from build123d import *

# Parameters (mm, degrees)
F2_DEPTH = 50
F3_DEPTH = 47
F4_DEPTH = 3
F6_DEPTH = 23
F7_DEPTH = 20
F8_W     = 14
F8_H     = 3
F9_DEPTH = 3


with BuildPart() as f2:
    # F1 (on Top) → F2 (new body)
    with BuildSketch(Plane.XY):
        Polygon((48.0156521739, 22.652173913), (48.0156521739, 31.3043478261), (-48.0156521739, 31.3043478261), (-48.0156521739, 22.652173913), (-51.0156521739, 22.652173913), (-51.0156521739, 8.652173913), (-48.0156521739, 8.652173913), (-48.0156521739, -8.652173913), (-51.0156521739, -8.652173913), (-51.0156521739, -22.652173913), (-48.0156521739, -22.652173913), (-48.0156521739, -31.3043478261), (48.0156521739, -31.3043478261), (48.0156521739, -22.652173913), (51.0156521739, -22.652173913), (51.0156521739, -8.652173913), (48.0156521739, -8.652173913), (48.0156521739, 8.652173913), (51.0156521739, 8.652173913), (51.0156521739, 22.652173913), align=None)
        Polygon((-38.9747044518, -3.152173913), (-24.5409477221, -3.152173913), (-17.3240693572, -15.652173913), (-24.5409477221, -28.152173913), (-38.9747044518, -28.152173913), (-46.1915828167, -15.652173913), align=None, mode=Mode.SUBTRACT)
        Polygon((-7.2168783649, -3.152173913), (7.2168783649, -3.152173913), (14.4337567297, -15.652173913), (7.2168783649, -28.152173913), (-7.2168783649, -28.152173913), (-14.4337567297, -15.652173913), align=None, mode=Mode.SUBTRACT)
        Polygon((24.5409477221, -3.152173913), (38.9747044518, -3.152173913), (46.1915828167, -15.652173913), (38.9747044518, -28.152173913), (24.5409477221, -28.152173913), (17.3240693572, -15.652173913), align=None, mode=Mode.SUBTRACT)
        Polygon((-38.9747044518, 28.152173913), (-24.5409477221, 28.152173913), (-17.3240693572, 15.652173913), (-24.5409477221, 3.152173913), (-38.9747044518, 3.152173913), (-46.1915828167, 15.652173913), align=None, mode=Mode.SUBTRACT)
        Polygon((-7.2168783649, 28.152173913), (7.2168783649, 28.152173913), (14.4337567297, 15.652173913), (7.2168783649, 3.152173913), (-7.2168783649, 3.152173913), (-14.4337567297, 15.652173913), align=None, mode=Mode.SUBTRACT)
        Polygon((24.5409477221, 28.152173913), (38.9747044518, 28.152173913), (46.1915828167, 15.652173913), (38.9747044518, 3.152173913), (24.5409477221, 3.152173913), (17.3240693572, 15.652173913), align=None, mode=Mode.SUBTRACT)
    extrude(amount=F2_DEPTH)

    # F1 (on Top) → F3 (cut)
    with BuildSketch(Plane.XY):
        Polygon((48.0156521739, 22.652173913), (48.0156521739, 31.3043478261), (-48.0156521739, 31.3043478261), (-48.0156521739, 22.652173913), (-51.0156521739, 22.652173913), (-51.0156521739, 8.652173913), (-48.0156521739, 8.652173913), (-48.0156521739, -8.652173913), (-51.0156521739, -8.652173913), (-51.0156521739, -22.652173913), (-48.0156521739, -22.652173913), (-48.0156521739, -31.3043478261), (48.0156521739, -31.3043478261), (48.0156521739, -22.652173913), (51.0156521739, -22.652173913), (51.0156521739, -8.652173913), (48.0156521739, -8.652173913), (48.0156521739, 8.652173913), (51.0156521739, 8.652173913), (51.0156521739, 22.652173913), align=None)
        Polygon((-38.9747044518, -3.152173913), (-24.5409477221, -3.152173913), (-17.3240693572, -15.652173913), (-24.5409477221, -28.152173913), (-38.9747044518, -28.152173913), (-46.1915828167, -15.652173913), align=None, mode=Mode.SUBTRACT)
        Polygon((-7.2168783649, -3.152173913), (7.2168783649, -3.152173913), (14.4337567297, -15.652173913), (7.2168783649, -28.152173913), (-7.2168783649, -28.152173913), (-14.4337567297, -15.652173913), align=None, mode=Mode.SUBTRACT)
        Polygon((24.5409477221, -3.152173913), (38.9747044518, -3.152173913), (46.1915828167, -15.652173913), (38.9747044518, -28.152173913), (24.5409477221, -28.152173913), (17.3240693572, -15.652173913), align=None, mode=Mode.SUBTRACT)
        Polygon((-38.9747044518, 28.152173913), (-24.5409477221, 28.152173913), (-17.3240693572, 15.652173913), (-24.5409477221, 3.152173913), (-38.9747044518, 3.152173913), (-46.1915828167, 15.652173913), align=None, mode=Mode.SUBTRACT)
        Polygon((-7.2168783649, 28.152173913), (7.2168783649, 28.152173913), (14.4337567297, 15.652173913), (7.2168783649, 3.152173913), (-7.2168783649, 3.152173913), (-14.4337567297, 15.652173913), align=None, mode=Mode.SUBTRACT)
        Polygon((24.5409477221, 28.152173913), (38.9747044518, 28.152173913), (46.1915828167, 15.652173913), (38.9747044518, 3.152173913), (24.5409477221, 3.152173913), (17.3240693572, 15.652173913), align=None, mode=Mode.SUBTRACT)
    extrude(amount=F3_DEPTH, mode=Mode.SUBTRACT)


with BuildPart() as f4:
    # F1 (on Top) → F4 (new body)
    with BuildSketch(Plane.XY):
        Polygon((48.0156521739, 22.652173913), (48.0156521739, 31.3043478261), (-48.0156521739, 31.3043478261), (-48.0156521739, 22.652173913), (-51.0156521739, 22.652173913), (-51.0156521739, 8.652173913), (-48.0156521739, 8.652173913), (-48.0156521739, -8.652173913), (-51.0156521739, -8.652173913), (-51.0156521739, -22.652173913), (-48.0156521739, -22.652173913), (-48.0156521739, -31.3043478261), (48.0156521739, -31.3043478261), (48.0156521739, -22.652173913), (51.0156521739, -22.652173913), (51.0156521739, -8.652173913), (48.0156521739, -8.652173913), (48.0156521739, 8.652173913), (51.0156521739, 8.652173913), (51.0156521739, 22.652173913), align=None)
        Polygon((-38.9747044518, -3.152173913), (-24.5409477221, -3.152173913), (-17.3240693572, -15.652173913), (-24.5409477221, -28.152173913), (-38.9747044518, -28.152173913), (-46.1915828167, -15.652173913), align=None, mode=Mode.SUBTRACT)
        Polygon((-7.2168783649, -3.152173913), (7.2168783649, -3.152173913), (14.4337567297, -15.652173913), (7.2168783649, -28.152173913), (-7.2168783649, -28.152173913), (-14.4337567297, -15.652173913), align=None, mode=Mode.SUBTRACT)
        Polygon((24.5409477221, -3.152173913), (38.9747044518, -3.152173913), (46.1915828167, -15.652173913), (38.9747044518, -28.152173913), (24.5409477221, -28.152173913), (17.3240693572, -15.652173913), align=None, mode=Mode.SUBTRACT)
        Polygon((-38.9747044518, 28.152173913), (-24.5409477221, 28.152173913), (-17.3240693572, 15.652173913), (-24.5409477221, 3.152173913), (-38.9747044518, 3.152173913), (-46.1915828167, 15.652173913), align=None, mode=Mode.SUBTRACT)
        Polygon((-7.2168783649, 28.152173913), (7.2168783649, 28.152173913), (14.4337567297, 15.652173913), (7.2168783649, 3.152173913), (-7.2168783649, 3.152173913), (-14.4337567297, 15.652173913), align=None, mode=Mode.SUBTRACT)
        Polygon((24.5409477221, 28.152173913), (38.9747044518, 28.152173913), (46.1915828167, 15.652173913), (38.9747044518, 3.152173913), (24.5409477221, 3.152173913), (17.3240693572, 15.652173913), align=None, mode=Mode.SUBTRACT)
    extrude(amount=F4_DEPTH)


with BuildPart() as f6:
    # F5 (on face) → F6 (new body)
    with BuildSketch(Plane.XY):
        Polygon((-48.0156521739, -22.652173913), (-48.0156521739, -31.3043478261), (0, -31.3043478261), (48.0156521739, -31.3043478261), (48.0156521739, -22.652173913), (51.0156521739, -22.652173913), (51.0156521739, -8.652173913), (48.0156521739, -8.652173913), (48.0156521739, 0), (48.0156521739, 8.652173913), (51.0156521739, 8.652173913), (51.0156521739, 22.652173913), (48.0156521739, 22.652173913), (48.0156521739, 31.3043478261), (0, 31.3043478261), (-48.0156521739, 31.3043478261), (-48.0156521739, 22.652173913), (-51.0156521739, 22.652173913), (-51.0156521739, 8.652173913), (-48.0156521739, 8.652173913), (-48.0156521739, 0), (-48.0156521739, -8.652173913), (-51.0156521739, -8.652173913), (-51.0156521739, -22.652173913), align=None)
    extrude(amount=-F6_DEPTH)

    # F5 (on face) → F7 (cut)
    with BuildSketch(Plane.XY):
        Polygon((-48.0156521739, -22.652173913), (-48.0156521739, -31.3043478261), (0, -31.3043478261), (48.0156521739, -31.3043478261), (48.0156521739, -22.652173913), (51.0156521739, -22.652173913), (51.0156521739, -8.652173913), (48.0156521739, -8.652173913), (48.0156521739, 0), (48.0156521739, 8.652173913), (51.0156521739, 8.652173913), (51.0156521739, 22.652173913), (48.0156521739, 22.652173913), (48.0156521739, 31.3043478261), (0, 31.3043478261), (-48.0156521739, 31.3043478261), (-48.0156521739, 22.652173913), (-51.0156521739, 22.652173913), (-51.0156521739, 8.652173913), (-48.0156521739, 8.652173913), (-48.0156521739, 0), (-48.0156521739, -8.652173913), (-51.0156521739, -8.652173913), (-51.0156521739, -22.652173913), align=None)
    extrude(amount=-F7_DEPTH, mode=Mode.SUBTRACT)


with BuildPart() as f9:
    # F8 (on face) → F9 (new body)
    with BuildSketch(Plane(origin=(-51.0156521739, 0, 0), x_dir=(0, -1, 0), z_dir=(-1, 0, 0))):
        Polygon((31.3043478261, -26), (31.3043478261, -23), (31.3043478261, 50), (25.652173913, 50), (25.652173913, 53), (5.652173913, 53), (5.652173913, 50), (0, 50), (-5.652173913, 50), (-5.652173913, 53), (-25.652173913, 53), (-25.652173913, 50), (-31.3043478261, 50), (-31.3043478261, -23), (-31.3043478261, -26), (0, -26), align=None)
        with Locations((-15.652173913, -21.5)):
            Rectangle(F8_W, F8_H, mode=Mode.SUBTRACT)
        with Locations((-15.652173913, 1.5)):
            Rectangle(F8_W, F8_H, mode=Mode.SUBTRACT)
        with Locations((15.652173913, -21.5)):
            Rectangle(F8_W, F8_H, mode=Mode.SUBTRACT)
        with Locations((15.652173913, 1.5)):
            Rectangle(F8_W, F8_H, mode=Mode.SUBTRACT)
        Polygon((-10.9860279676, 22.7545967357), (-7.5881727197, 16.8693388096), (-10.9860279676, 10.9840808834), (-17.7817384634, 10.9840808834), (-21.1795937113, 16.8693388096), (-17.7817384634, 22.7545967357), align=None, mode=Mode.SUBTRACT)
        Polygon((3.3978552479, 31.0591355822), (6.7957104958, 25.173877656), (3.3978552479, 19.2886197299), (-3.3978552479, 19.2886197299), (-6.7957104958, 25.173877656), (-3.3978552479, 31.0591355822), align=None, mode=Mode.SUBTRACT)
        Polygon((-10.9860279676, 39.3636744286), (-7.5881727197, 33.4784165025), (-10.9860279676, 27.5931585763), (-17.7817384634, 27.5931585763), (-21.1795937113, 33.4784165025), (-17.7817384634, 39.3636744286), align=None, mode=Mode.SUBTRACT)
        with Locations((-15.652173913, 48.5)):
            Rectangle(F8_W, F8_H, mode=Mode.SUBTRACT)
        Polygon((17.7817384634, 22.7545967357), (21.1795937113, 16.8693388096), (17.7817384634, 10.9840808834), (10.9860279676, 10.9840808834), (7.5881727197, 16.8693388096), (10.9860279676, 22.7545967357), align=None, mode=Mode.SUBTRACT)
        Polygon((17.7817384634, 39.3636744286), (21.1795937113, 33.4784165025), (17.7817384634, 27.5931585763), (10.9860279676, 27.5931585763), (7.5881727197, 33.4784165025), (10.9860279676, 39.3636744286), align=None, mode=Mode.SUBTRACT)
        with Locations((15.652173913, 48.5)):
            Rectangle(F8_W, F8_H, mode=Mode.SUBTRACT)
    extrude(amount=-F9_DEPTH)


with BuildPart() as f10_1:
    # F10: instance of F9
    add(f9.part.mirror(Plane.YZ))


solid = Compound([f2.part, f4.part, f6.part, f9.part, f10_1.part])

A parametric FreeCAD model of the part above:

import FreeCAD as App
import Part
import Sketcher

V = App.Vector
Q = App.Units.Quantity


def add_polygon(sketch, points):
    """Adds a closed chain of lines whose ends are joined by coincident constraints."""
    first, n = sketch.GeometryCount, len(points)
    for a, b in zip(points, points[1:] + points[:1]):
        sketch.addGeometry(Part.LineSegment(App.Vector(*a, 0), App.Vector(*b, 0)), False)
    for i in range(n):
        sketch.addConstraint(Sketcher.Constraint("Coincident", first + i, 2, first + (i + 1) % n, 1))

doc = App.newDocument("Part")
body = doc.addObject("PartDesign::Body", "Body")

sketch1 = doc.addObject("Sketcher::SketchObject", "Sketch")
body.addObject(sketch1)
sketch1.AttachmentSupport = (doc.XY_Plane, [""])
sketch1.MapMode = "FlatFace"
add_polygon(sketch1, [(48.015652, 22.652174), (48.015652, 31.304348), (-48.015652, 31.304348), (-48.015652, 22.652174), (-51.015652, 22.652174), (-51.015652, 8.652174), (-48.015652, 8.652174), (-48.015652, -8.652174), (-51.015652, -8.652174), (-51.015652, -22.652174), (-48.015652, -22.652174), (-48.015652, -31.304348), (48.015652, -31.304348), (48.015652, -22.652174), (51.015652, -22.652174), (51.015652, -8.652174), (48.015652, -8.652174), (48.015652, 8.652174), (51.015652, 8.652174), (51.015652, 22.652174)])
add_polygon(sketch1, [(-46.191583, -15.652174), (-38.974704, -3.152174), (-24.540948, -3.152174), (-17.324069, -15.652174), (-24.540948, -28.152174), (-38.974704, -28.152174)])
add_polygon(sketch1, [(-14.433757, -15.652174), (-7.216878, -3.152174), (7.216878, -3.152174), (14.433757, -15.652174), (7.216878, -28.152174), (-7.216878, -28.152174)])
add_polygon(sketch1, [(17.324069, -15.652174), (24.540948, -3.152174), (38.974704, -3.152174), (46.191583, -15.652174), (38.974704, -28.152174), (24.540948, -28.152174)])
add_polygon(sketch1, [(-46.191583, 15.652174), (-38.974704, 28.152174), (-24.540948, 28.152174), (-17.324069, 15.652174), (-24.540948, 3.152174), (-38.974704, 3.152174)])
add_polygon(sketch1, [(-14.433757, 15.652174), (-7.216878, 28.152174), (7.216878, 28.152174), (14.433757, 15.652174), (7.216878, 3.152174), (-7.216878, 3.152174)])
add_polygon(sketch1, [(17.324069, 15.652174), (24.540948, 28.152174), (38.974704, 28.152174), (46.191583, 15.652174), (38.974704, 3.152174), (24.540948, 3.152174)])
sketch1.addConstraint(Sketcher.Constraint("Vertical", 0))
sketch1.addConstraint(Sketcher.Constraint("Horizontal", 1))
sketch1.addConstraint(Sketcher.Constraint("Vertical", 2))
sketch1.addConstraint(Sketcher.Constraint("Horizontal", 3))
sketch1.addConstraint(Sketcher.Constraint("Vertical", 4))
sketch1.addConstraint(Sketcher.Constraint("Horizontal", 5))
sketch1.addConstraint(Sketcher.Constraint("Vertical", 6))
sketch1.addConstraint(Sketcher.Constraint("Horizontal", 7))
sketch1.addConstraint(Sketcher.Constraint("Vertical", 8))
sketch1.addConstraint(Sketcher.Constraint("Horizontal", 9))
sketch1.addConstraint(Sketcher.Constraint("Vertical", 10))
sketch1.addConstraint(Sketcher.Constraint("Horizontal", 11))
sketch1.addConstraint(Sketcher.Constraint("Vertical", 12))
sketch1.addConstraint(Sketcher.Constraint("Horizontal", 13))
sketch1.addConstraint(Sketcher.Constraint("Vertical", 14))
sketch1.addConstraint(Sketcher.Constraint("Horizontal", 15))
sketch1.addConstraint(Sketcher.Constraint("Vertical", 16))
sketch1.addConstraint(Sketcher.Constraint("Horizontal", 17))
sketch1.addConstraint(Sketcher.Constraint("Vertical", 18))
sketch1.addConstraint(Sketcher.Constraint("Horizontal", 19))
sketch1.addConstraint(Sketcher.Constraint("Horizontal", 21))
sketch1.addConstraint(Sketcher.Constraint("Horizontal", 24))
sketch1.addConstraint(Sketcher.Constraint("Horizontal", 27))
sketch1.addConstraint(Sketcher.Constraint("Horizontal", 30))
sketch1.addConstraint(Sketcher.Constraint("Horizontal", 33))
sketch1.addConstraint(Sketcher.Constraint("Horizontal", 36))
sketch1.addConstraint(Sketcher.Constraint("Horizontal", 39))
sketch1.addConstraint(Sketcher.Constraint("Horizontal", 42))
sketch1.addConstraint(Sketcher.Constraint("Horizontal", 45))
sketch1.addConstraint(Sketcher.Constraint("Horizontal", 48))
sketch1.addConstraint(Sketcher.Constraint("Horizontal", 51))
sketch1.addConstraint(Sketcher.Constraint("Horizontal", 54))
sketch1.addConstraint(Sketcher.Constraint("Symmetric", 0, 2, 10, 2, -1, 1))
sketch1.addConstraint(Sketcher.Constraint("Symmetric", 2, 2, 12, 2, -1, 1))
sketch1.addConstraint(Sketcher.Constraint("Symmetric", 4, 2, 14, 2, -1, 1))
sketch1.addConstraint(Sketcher.Constraint("Symmetric", 6, 2, 16, 2, -1, 1))
sketch1.addConstraint(Sketcher.Constraint("Symmetric", 8, 2, 18, 2, -1, 1))
sketch1.addConstraint(Sketcher.Constraint("Symmetric", 35, 2, 38, 2, -1, 1))
sketch1.addConstraint(Sketcher.Constraint("Symmetric", 37, 2, 40, 2, -1, 1))
sketch1.addConstraint(Sketcher.Constraint("Symmetric", 32, 2, 41, 2, -1, 1))
sketch1.addConstraint(Sketcher.Constraint("Symmetric", 34, 2, 43, 2, -1, 1))
sketch1.addConstraint(Sketcher.Constraint("Symmetric", 29, 2, 44, 2, -1, 1))
sketch1.addConstraint(Sketcher.Constraint("Symmetric", 31, 2, 46, 2, -1, 1))
sketch1.addConstraint(Sketcher.Constraint("Symmetric", 26, 2, 47, 2, -1, 1))
sketch1.addConstraint(Sketcher.Constraint("Symmetric", 28, 2, 49, 2, -1, 1))
sketch1.addConstraint(Sketcher.Constraint("Symmetric", 23, 2, 50, 2, -1, 1))
sketch1.addConstraint(Sketcher.Constraint("Symmetric", 25, 2, 52, 2, -1, 1))
sketch1.addConstraint(Sketcher.Constraint("Symmetric", 20, 2, 53, 2, -1, 1))
sketch1.addConstraint(Sketcher.Constraint("Symmetric", 22, 2, 55, 2, -1, 1))
sketch1.addConstraint(Sketcher.Constraint("Symmetric", 9, 2, 12, 2, -2))
sketch1.addConstraint(Sketcher.Constraint("Symmetric", 7, 2, 14, 2, -2))
sketch1.addConstraint(Sketcher.Constraint("Symmetric", 28, 2, 31, 2, -2))
sketch1.addConstraint(Sketcher.Constraint("Symmetric", 21, 2, 32, 2, -2))
sketch1.addConstraint(Sketcher.Constraint("Symmetric", 25, 2, 34, 2, -2))
sketch1.addConstraint(Sketcher.Constraint("Symmetric", 24, 2, 35, 2, -2))
sketch1.addConstraint(Sketcher.Constraint("Symmetric", 22, 2, 37, 2, -2))
sketch1.addConstraint(Sketcher.Constraint("Parallel", 20, 23))
sketch1.addConstraint(Sketcher.Constraint("Parallel", 22, 25))
sketch1.addConstraint(Sketcher.Constraint("Parallel", 23, 26))
sketch1.addConstraint(Sketcher.Constraint("Parallel", 25, 28))
sketch1.addConstraint(Sketcher.Constraint("Parallel", 26, 29))
sketch1.addConstraint(Sketcher.Constraint("Parallel", 28, 31))
sketch1.addConstraint(Sketcher.Constraint("Parallel", 29, 32))
sketch1.addConstraint(Sketcher.Constraint("Parallel", 31, 34))
sketch1.addConstraint(Sketcher.Constraint("Parallel", 34, 37))
sketch1.addConstraint(Sketcher.Constraint("Parallel", 37, 40))
sketch1.addConstraint(Sketcher.Constraint("Parallel", 40, 43))
sketch1.addConstraint(Sketcher.Constraint("Parallel", 43, 46))
sketch1.addConstraint(Sketcher.Constraint("Parallel", 46, 49))
sketch1.addConstraint(Sketcher.Constraint("Parallel", 49, 52))
sketch1.addConstraint(Sketcher.Constraint("Parallel", 52, 55))
sketch1.addConstraint(Sketcher.Constraint("Horizontal", 22, 2, 25, 2))
sketch1.addConstraint(Sketcher.Constraint("Horizontal", 21, 2, 26, 2))
sketch1.addConstraint(Sketcher.Constraint("Horizontal", 25, 2, 28, 2))
sketch1.addConstraint(Sketcher.Constraint("Horizontal", 24, 2, 29, 2))
sketch1.addConstraint(Sketcher.Constraint("Vertical", 2, 2, 5, 2))
sketch1.addConstraint(Sketcher.Constraint("Vertical", 21, 2, 23, 2))
sketch1.addConstraint(Sketcher.Constraint("Equal", 24, 27))
sketch1.addConstraint(Sketcher.Constraint("DistanceX", 3, 2, 3, 1, 3.0))
sketch1.addConstraint(Sketcher.Constraint("DistanceY", 4, 2, 4, 1, 14.0))
sketch1.addConstraint(Sketcher.Constraint("Angle", 20, Q("60 deg")))
sketch1.addConstraint(Sketcher.Constraint("DistanceY", 22, 2, 6, 2, 7.0))
sketch1.addConstraint(Sketcher.Constraint("DistanceY", 23, 2, 21, 2, 25.0))
sketch1.addConstraint(Sketcher.Constraint("DistanceX", 1, 2, 1, 1, 96.031304))
sketch1.addConstraint(Sketcher.Constraint("DistanceX", 21, 1, 21, 2, 14.433757))
sketch1.addConstraint(Sketcher.Constraint("DistanceY", 0, 1, 0, 2, 8.652174))
sketch1.addConstraint(Sketcher.Constraint("DistanceY", 6, 2, 6, 1, 17.304348))
sketch1.addConstraint(Sketcher.Constraint("DistanceX", 22, 2, -1, 1, 17.324069))
pad1 = doc.addObject("PartDesign::Pad", "Pad")
body.addObject(pad1)
pad1.Profile = sketch1
pad1.Length = 50

sketch2 = doc.addObject("Sketcher::SketchObject", "Sketch001")
body.addObject(sketch2)
sketch2.AttachmentSupport = (doc.XY_Plane, [""])
sketch2.MapMode = "FlatFace"
add_polygon(sketch2, [(48.015652, 22.652174), (48.015652, 31.304348), (-48.015652, 31.304348), (-48.015652, 22.652174), (-51.015652, 22.652174), (-51.015652, 8.652174), (-48.015652, 8.652174), (-48.015652, -8.652174), (-51.015652, -8.652174), (-51.015652, -22.652174), (-48.015652, -22.652174), (-48.015652, -31.304348), (48.015652, -31.304348), (48.015652, -22.652174), (51.015652, -22.652174), (51.015652, -8.652174), (48.015652, -8.652174), (48.015652, 8.652174), (51.015652, 8.652174), (51.015652, 22.652174)])
add_polygon(sketch2, [(-46.191583, -15.652174), (-38.974704, -3.152174), (-24.540948, -3.152174), (-17.324069, -15.652174), (-24.540948, -28.152174), (-38.974704, -28.152174)])
add_polygon(sketch2, [(-14.433757, -15.652174), (-7.216878, -3.152174), (7.216878, -3.152174), (14.433757, -15.652174), (7.216878, -28.152174), (-7.216878, -28.152174)])
add_polygon(sketch2, [(17.324069, -15.652174), (24.540948, -3.152174), (38.974704, -3.152174), (46.191583, -15.652174), (38.974704, -28.152174), (24.540948, -28.152174)])
add_polygon(sketch2, [(-46.191583, 15.652174), (-38.974704, 28.152174), (-24.540948, 28.152174), (-17.324069, 15.652174), (-24.540948, 3.152174), (-38.974704, 3.152174)])
add_polygon(sketch2, [(-14.433757, 15.652174), (-7.216878, 28.152174), (7.216878, 28.152174), (14.433757, 15.652174), (7.216878, 3.152174), (-7.216878, 3.152174)])
add_polygon(sketch2, [(17.324069, 15.652174), (24.540948, 28.152174), (38.974704, 28.152174), (46.191583, 15.652174), (38.974704, 3.152174), (24.540948, 3.152174)])
sketch2.addConstraint(Sketcher.Constraint("Vertical", 0))
sketch2.addConstraint(Sketcher.Constraint("Horizontal", 1))
sketch2.addConstraint(Sketcher.Constraint("Vertical", 2))
sketch2.addConstraint(Sketcher.Constraint("Horizontal", 3))
sketch2.addConstraint(Sketcher.Constraint("Vertical", 4))
sketch2.addConstraint(Sketcher.Constraint("Horizontal", 5))
sketch2.addConstraint(Sketcher.Constraint("Vertical", 6))
sketch2.addConstraint(Sketcher.Constraint("Horizontal", 7))
sketch2.addConstraint(Sketcher.Constraint("Vertical", 8))
sketch2.addConstraint(Sketcher.Constraint("Horizontal", 9))
sketch2.addConstraint(Sketcher.Constraint("Vertical", 10))
sketch2.addConstraint(Sketcher.Constraint("Horizontal", 11))
sketch2.addConstraint(Sketcher.Constraint("Vertical", 12))
sketch2.addConstraint(Sketcher.Constraint("Horizontal", 13))
sketch2.addConstraint(Sketcher.Constraint("Vertical", 14))
sketch2.addConstraint(Sketcher.Constraint("Horizontal", 15))
sketch2.addConstraint(Sketcher.Constraint("Vertical", 16))
sketch2.addConstraint(Sketcher.Constraint("Horizontal", 17))
sketch2.addConstraint(Sketcher.Constraint("Vertical", 18))
sketch2.addConstraint(Sketcher.Constraint("Horizontal", 19))
sketch2.addConstraint(Sketcher.Constraint("Horizontal", 21))
sketch2.addConstraint(Sketcher.Constraint("Horizontal", 24))
sketch2.addConstraint(Sketcher.Constraint("Horizontal", 27))
sketch2.addConstraint(Sketcher.Constraint("Horizontal", 30))
sketch2.addConstraint(Sketcher.Constraint("Horizontal", 33))
sketch2.addConstraint(Sketcher.Constraint("Horizontal", 36))
sketch2.addConstraint(Sketcher.Constraint("Horizontal", 39))
sketch2.addConstraint(Sketcher.Constraint("Horizontal", 42))
sketch2.addConstraint(Sketcher.Constraint("Horizontal", 45))
sketch2.addConstraint(Sketcher.Constraint("Horizontal", 48))
sketch2.addConstraint(Sketcher.Constraint("Horizontal", 51))
sketch2.addConstraint(Sketcher.Constraint("Horizontal", 54))
sketch2.addConstraint(Sketcher.Constraint("Symmetric", 0, 2, 10, 2, -1, 1))
sketch2.addConstraint(Sketcher.Constraint("Symmetric", 2, 2, 12, 2, -1, 1))
sketch2.addConstraint(Sketcher.Constraint("Symmetric", 4, 2, 14, 2, -1, 1))
sketch2.addConstraint(Sketcher.Constraint("Symmetric", 6, 2, 16, 2, -1, 1))
sketch2.addConstraint(Sketcher.Constraint("Symmetric", 8, 2, 18, 2, -1, 1))
sketch2.addConstraint(Sketcher.Constraint("Symmetric", 35, 2, 38, 2, -1, 1))
sketch2.addConstraint(Sketcher.Constraint("Symmetric", 37, 2, 40, 2, -1, 1))
sketch2.addConstraint(Sketcher.Constraint("Symmetric", 32, 2, 41, 2, -1, 1))
sketch2.addConstraint(Sketcher.Constraint("Symmetric", 34, 2, 43, 2, -1, 1))
sketch2.addConstraint(Sketcher.Constraint("Symmetric", 29, 2, 44, 2, -1, 1))
sketch2.addConstraint(Sketcher.Constraint("Symmetric", 31, 2, 46, 2, -1, 1))
sketch2.addConstraint(Sketcher.Constraint("Symmetric", 26, 2, 47, 2, -1, 1))
sketch2.addConstraint(Sketcher.Constraint("Symmetric", 28, 2, 49, 2, -1, 1))
sketch2.addConstraint(Sketcher.Constraint("Symmetric", 23, 2, 50, 2, -1, 1))
sketch2.addConstraint(Sketcher.Constraint("Symmetric", 25, 2, 52, 2, -1, 1))
sketch2.addConstraint(Sketcher.Constraint("Symmetric", 20, 2, 53, 2, -1, 1))
sketch2.addConstraint(Sketcher.Constraint("Symmetric", 22, 2, 55, 2, -1, 1))
sketch2.addConstraint(Sketcher.Constraint("Symmetric", 9, 2, 12, 2, -2))
sketch2.addConstraint(Sketcher.Constraint("Symmetric", 7, 2, 14, 2, -2))
sketch2.addConstraint(Sketcher.Constraint("Symmetric", 28, 2, 31, 2, -2))
sketch2.addConstraint(Sketcher.Constraint("Symmetric", 21, 2, 32, 2, -2))
sketch2.addConstraint(Sketcher.Constraint("Symmetric", 25, 2, 34, 2, -2))
sketch2.addConstraint(Sketcher.Constraint("Symmetric", 24, 2, 35, 2, -2))
sketch2.addConstraint(Sketcher.Constraint("Symmetric", 22, 2, 37, 2, -2))
sketch2.addConstraint(Sketcher.Constraint("Parallel", 20, 23))
sketch2.addConstraint(Sketcher.Constraint("Parallel", 22, 25))
sketch2.addConstraint(Sketcher.Constraint("Parallel", 23, 26))
sketch2.addConstraint(Sketcher.Constraint("Parallel", 25, 28))
sketch2.addConstraint(Sketcher.Constraint("Parallel", 26, 29))
sketch2.addConstraint(Sketcher.Constraint("Parallel", 28, 31))
sketch2.addConstraint(Sketcher.Constraint("Parallel", 29, 32))
sketch2.addConstraint(Sketcher.Constraint("Parallel", 31, 34))
sketch2.addConstraint(Sketcher.Constraint("Parallel", 34, 37))
sketch2.addConstraint(Sketcher.Constraint("Parallel", 37, 40))
sketch2.addConstraint(Sketcher.Constraint("Parallel", 40, 43))
sketch2.addConstraint(Sketcher.Constraint("Parallel", 43, 46))
sketch2.addConstraint(Sketcher.Constraint("Parallel", 46, 49))
sketch2.addConstraint(Sketcher.Constraint("Parallel", 49, 52))
sketch2.addConstraint(Sketcher.Constraint("Parallel", 52, 55))
sketch2.addConstraint(Sketcher.Constraint("Horizontal", 22, 2, 25, 2))
sketch2.addConstraint(Sketcher.Constraint("Horizontal", 21, 2, 26, 2))
sketch2.addConstraint(Sketcher.Constraint("Horizontal", 25, 2, 28, 2))
sketch2.addConstraint(Sketcher.Constraint("Horizontal", 24, 2, 29, 2))
sketch2.addConstraint(Sketcher.Constraint("Vertical", 2, 2, 5, 2))
sketch2.addConstraint(Sketcher.Constraint("Vertical", 21, 2, 23, 2))
sketch2.addConstraint(Sketcher.Constraint("Equal", 24, 27))
sketch2.addConstraint(Sketcher.Constraint("DistanceX", 3, 2, 3, 1, 3.0))
sketch2.addConstraint(Sketcher.Constraint("DistanceY", 4, 2, 4, 1, 14.0))
sketch2.addConstraint(Sketcher.Constraint("Angle", 20, Q("60 deg")))
sketch2.addConstraint(Sketcher.Constraint("DistanceY", 22, 2, 6, 2, 7.0))
sketch2.addConstraint(Sketcher.Constraint("DistanceY", 23, 2, 21, 2, 25.0))
sketch2.addConstraint(Sketcher.Constraint("DistanceX", 1, 2, 1, 1, 96.031304))
sketch2.addConstraint(Sketcher.Constraint("DistanceX", 21, 1, 21, 2, 14.433757))
sketch2.addConstraint(Sketcher.Constraint("DistanceY", 0, 1, 0, 2, 8.652174))
sketch2.addConstraint(Sketcher.Constraint("DistanceY", 6, 2, 6, 1, 17.304348))
sketch2.addConstraint(Sketcher.Constraint("DistanceX", 22, 2, -1, 1, 17.324069))
pocket1 = doc.addObject("PartDesign::Pocket", "Pocket")
body.addObject(pocket1)
pocket1.Profile = sketch2
pocket1.Length = 47
pocket1.Reversed = True
body2 = doc.addObject("PartDesign::Body", "Body001")

sketch3 = doc.addObject("Sketcher::SketchObject", "Sketch002")
body2.addObject(sketch3)
sketch3.AttachmentSupport = (doc.getObject("XY_Plane001"), [""])
sketch3.MapMode = "FlatFace"
add_polygon(sketch3, [(48.015652, 22.652174), (48.015652, 31.304348), (-48.015652, 31.304348), (-48.015652, 22.652174), (-51.015652, 22.652174), (-51.015652, 8.652174), (-48.015652, 8.652174), (-48.015652, -8.652174), (-51.015652, -8.652174), (-51.015652, -22.652174), (-48.015652, -22.652174), (-48.015652, -31.304348), (48.015652, -31.304348), (48.015652, -22.652174), (51.015652, -22.652174), (51.015652, -8.652174), (48.015652, -8.652174), (48.015652, 8.652174), (51.015652, 8.652174), (51.015652, 22.652174)])
add_polygon(sketch3, [(-46.191583, -15.652174), (-38.974704, -3.152174), (-24.540948, -3.152174), (-17.324069, -15.652174), (-24.540948, -28.152174), (-38.974704, -28.152174)])
add_polygon(sketch3, [(-14.433757, -15.652174), (-7.216878, -3.152174), (7.216878, -3.152174), (14.433757, -15.652174), (7.216878, -28.152174), (-7.216878, -28.152174)])
add_polygon(sketch3, [(17.324069, -15.652174), (24.540948, -3.152174), (38.974704, -3.152174), (46.191583, -15.652174), (38.974704, -28.152174), (24.540948, -28.152174)])
add_polygon(sketch3, [(-46.191583, 15.652174), (-38.974704, 28.152174), (-24.540948, 28.152174), (-17.324069, 15.652174), (-24.540948, 3.152174), (-38.974704, 3.152174)])
add_polygon(sketch3, [(-14.433757, 15.652174), (-7.216878, 28.152174), (7.216878, 28.152174), (14.433757, 15.652174), (7.216878, 3.152174), (-7.216878, 3.152174)])
add_polygon(sketch3, [(17.324069, 15.652174), (24.540948, 28.152174), (38.974704, 28.152174), (46.191583, 15.652174), (38.974704, 3.152174), (24.540948, 3.152174)])
sketch3.addConstraint(Sketcher.Constraint("Vertical", 0))
sketch3.addConstraint(Sketcher.Constraint("Horizontal", 1))
sketch3.addConstraint(Sketcher.Constraint("Vertical", 2))
sketch3.addConstraint(Sketcher.Constraint("Horizontal", 3))
sketch3.addConstraint(Sketcher.Constraint("Vertical", 4))
sketch3.addConstraint(Sketcher.Constraint("Horizontal", 5))
sketch3.addConstraint(Sketcher.Constraint("Vertical", 6))
sketch3.addConstraint(Sketcher.Constraint("Horizontal", 7))
sketch3.addConstraint(Sketcher.Constraint("Vertical", 8))
sketch3.addConstraint(Sketcher.Constraint("Horizontal", 9))
sketch3.addConstraint(Sketcher.Constraint("Vertical", 10))
sketch3.addConstraint(Sketcher.Constraint("Horizontal", 11))
sketch3.addConstraint(Sketcher.Constraint("Vertical", 12))
sketch3.addConstraint(Sketcher.Constraint("Horizontal", 13))
sketch3.addConstraint(Sketcher.Constraint("Vertical", 14))
sketch3.addConstraint(Sketcher.Constraint("Horizontal", 15))
sketch3.addConstraint(Sketcher.Constraint("Vertical", 16))
sketch3.addConstraint(Sketcher.Constraint("Horizontal", 17))
sketch3.addConstraint(Sketcher.Constraint("Vertical", 18))
sketch3.addConstraint(Sketcher.Constraint("Horizontal", 19))
sketch3.addConstraint(Sketcher.Constraint("Horizontal", 21))
sketch3.addConstraint(Sketcher.Constraint("Horizontal", 24))
sketch3.addConstraint(Sketcher.Constraint("Horizontal", 27))
sketch3.addConstraint(Sketcher.Constraint("Horizontal", 30))
sketch3.addConstraint(Sketcher.Constraint("Horizontal", 33))
sketch3.addConstraint(Sketcher.Constraint("Horizontal", 36))
sketch3.addConstraint(Sketcher.Constraint("Horizontal", 39))
sketch3.addConstraint(Sketcher.Constraint("Horizontal", 42))
sketch3.addConstraint(Sketcher.Constraint("Horizontal", 45))
sketch3.addConstraint(Sketcher.Constraint("Horizontal", 48))
sketch3.addConstraint(Sketcher.Constraint("Horizontal", 51))
sketch3.addConstraint(Sketcher.Constraint("Horizontal", 54))
sketch3.addConstraint(Sketcher.Constraint("Symmetric", 0, 2, 10, 2, -1, 1))
sketch3.addConstraint(Sketcher.Constraint("Symmetric", 2, 2, 12, 2, -1, 1))
sketch3.addConstraint(Sketcher.Constraint("Symmetric", 4, 2, 14, 2, -1, 1))
sketch3.addConstraint(Sketcher.Constraint("Symmetric", 6, 2, 16, 2, -1, 1))
sketch3.addConstraint(Sketcher.Constraint("Symmetric", 8, 2, 18, 2, -1, 1))
sketch3.addConstraint(Sketcher.Constraint("Symmetric", 35, 2, 38, 2, -1, 1))
sketch3.addConstraint(Sketcher.Constraint("Symmetric", 37, 2, 40, 2, -1, 1))
sketch3.addConstraint(Sketcher.Constraint("Symmetric", 32, 2, 41, 2, -1, 1))
sketch3.addConstraint(Sketcher.Constraint("Symmetric", 34, 2, 43, 2, -1, 1))
sketch3.addConstraint(Sketcher.Constraint("Symmetric", 29, 2, 44, 2, -1, 1))
sketch3.addConstraint(Sketcher.Constraint("Symmetric", 31, 2, 46, 2, -1, 1))
sketch3.addConstraint(Sketcher.Constraint("Symmetric", 26, 2, 47, 2, -1, 1))
sketch3.addConstraint(Sketcher.Constraint("Symmetric", 28, 2, 49, 2, -1, 1))
sketch3.addConstraint(Sketcher.Constraint("Symmetric", 23, 2, 50, 2, -1, 1))
sketch3.addConstraint(Sketcher.Constraint("Symmetric", 25, 2, 52, 2, -1, 1))
sketch3.addConstraint(Sketcher.Constraint("Symmetric", 20, 2, 53, 2, -1, 1))
sketch3.addConstraint(Sketcher.Constraint("Symmetric", 22, 2, 55, 2, -1, 1))
sketch3.addConstraint(Sketcher.Constraint("Symmetric", 9, 2, 12, 2, -2))
sketch3.addConstraint(Sketcher.Constraint("Symmetric", 7, 2, 14, 2, -2))
sketch3.addConstraint(Sketcher.Constraint("Symmetric", 28, 2, 31, 2, -2))
sketch3.addConstraint(Sketcher.Constraint("Symmetric", 21, 2, 32, 2, -2))
sketch3.addConstraint(Sketcher.Constraint("Symmetric", 25, 2, 34, 2, -2))
sketch3.addConstraint(Sketcher.Constraint("Symmetric", 24, 2, 35, 2, -2))
sketch3.addConstraint(Sketcher.Constraint("Symmetric", 22, 2, 37, 2, -2))
sketch3.addConstraint(Sketcher.Constraint("Parallel", 20, 23))
sketch3.addConstraint(Sketcher.Constraint("Parallel", 22, 25))
sketch3.addConstraint(Sketcher.Constraint("Parallel", 23, 26))
sketch3.addConstraint(Sketcher.Constraint("Parallel", 25, 28))
sketch3.addConstraint(Sketcher.Constraint("Parallel", 26, 29))
sketch3.addConstraint(Sketcher.Constraint("Parallel", 28, 31))
sketch3.addConstraint(Sketcher.Constraint("Parallel", 29, 32))
sketch3.addConstraint(Sketcher.Constraint("Parallel", 31, 34))
sketch3.addConstraint(Sketcher.Constraint("Parallel", 34, 37))
sketch3.addConstraint(Sketcher.Constraint("Parallel", 37, 40))
sketch3.addConstraint(Sketcher.Constraint("Parallel", 40, 43))
sketch3.addConstraint(Sketcher.Constraint("Parallel", 43, 46))
sketch3.addConstraint(Sketcher.Constraint("Parallel", 46, 49))
sketch3.addConstraint(Sketcher.Constraint("Parallel", 49, 52))
sketch3.addConstraint(Sketcher.Constraint("Parallel", 52, 55))
sketch3.addConstraint(Sketcher.Constraint("Horizontal", 22, 2, 25, 2))
sketch3.addConstraint(Sketcher.Constraint("Horizontal", 21, 2, 26, 2))
sketch3.addConstraint(Sketcher.Constraint("Horizontal", 25, 2, 28, 2))
sketch3.addConstraint(Sketcher.Constraint("Horizontal", 24, 2, 29, 2))
sketch3.addConstraint(Sketcher.Constraint("Vertical", 2, 2, 5, 2))
sketch3.addConstraint(Sketcher.Constraint("Vertical", 21, 2, 23, 2))
sketch3.addConstraint(Sketcher.Constraint("Equal", 24, 27))
sketch3.addConstraint(Sketcher.Constraint("DistanceX", 3, 2, 3, 1, 3.0))
sketch3.addConstraint(Sketcher.Constraint("DistanceY", 4, 2, 4, 1, 14.0))
sketch3.addConstraint(Sketcher.Constraint("Angle", 20, Q("60 deg")))
sketch3.addConstraint(Sketcher.Constraint("DistanceY", 22, 2, 6, 2, 7.0))
sketch3.addConstraint(Sketcher.Constraint("DistanceY", 23, 2, 21, 2, 25.0))
sketch3.addConstraint(Sketcher.Constraint("DistanceX", 1, 2, 1, 1, 96.031304))
sketch3.addConstraint(Sketcher.Constraint("DistanceX", 21, 1, 21, 2, 14.433757))
sketch3.addConstraint(Sketcher.Constraint("DistanceY", 0, 1, 0, 2, 8.652174))
sketch3.addConstraint(Sketcher.Constraint("DistanceY", 6, 2, 6, 1, 17.304348))
sketch3.addConstraint(Sketcher.Constraint("DistanceX", 22, 2, -1, 1, 17.324069))
pad2 = doc.addObject("PartDesign::Pad", "Pad001")
body2.addObject(pad2)
pad2.Profile = sketch3
pad2.Length = 3
body3 = doc.addObject("PartDesign::Body", "Body002")

sketch4 = doc.addObject("Sketcher::SketchObject", "Sketch003")
body3.addObject(sketch4)
sketch4.AttachmentSupport = (doc.getObject("XY_Plane002"), [""])
sketch4.MapMode = "FlatFace"
add_polygon(sketch4, [(-48.015652, -22.652174), (-48.015652, -31.304348), (48.015652, -31.304348), (48.015652, -22.652174), (51.015652, -22.652174), (51.015652, -8.652174), (48.015652, -8.652174), (48.015652, 8.652174), (51.015652, 8.652174), (51.015652, 22.652174), (48.015652, 22.652174), (48.015652, 31.304348), (-48.015652, 31.304348), (-48.015652, 22.652174), (-51.015652, 22.652174), (-51.015652, 8.652174), (-48.015652, 8.652174), (-48.015652, -8.652174), (-51.015652, -8.652174), (-51.015652, -22.652174)])
sketch4.addConstraint(Sketcher.Constraint("Vertical", 0))
sketch4.addConstraint(Sketcher.Constraint("Horizontal", 1))
sketch4.addConstraint(Sketcher.Constraint("Vertical", 2))
sketch4.addConstraint(Sketcher.Constraint("Horizontal", 3))
sketch4.addConstraint(Sketcher.Constraint("Vertical", 4))
sketch4.addConstraint(Sketcher.Constraint("Horizontal", 5))
sketch4.addConstraint(Sketcher.Constraint("Vertical", 6))
sketch4.addConstraint(Sketcher.Constraint("Horizontal", 7))
sketch4.addConstraint(Sketcher.Constraint("Vertical", 8))
sketch4.addConstraint(Sketcher.Constraint("Horizontal", 9))
sketch4.addConstraint(Sketcher.Constraint("Vertical", 10))
sketch4.addConstraint(Sketcher.Constraint("Horizontal", 11))
sketch4.addConstraint(Sketcher.Constraint("Vertical", 12))
sketch4.addConstraint(Sketcher.Constraint("Horizontal", 13))
sketch4.addConstraint(Sketcher.Constraint("Vertical", 14))
sketch4.addConstraint(Sketcher.Constraint("Horizontal", 15))
sketch4.addConstraint(Sketcher.Constraint("Vertical", 16))
sketch4.addConstraint(Sketcher.Constraint("Horizontal", 17))
sketch4.addConstraint(Sketcher.Constraint("Vertical", 18))
sketch4.addConstraint(Sketcher.Constraint("Horizontal", 19))
sketch4.addConstraint(Sketcher.Constraint("Symmetric", 0, 2, 10, 2, -1, 1))
sketch4.addConstraint(Sketcher.Constraint("Symmetric", 2, 2, 12, 2, -1, 1))
sketch4.addConstraint(Sketcher.Constraint("Symmetric", 4, 2, 14, 2, -1, 1))
sketch4.addConstraint(Sketcher.Constraint("Symmetric", 6, 2, 16, 2, -1, 1))
sketch4.addConstraint(Sketcher.Constraint("Symmetric", 8, 2, 18, 2, -1, 1))
sketch4.addConstraint(Sketcher.Constraint("Symmetric", 9, 2, 12, 2, -2))
sketch4.addConstraint(Sketcher.Constraint("Symmetric", 7, 2, 14, 2, -2))
sketch4.addConstraint(Sketcher.Constraint("Vertical", 2, 2, 5, 2))
sketch4.addConstraint(Sketcher.Constraint("DistanceX", 3, 1, 3, 2, 3.0))
sketch4.addConstraint(Sketcher.Constraint("DistanceY", 4, 1, 4, 2, 14.0))
sketch4.addConstraint(Sketcher.Constraint("DistanceX", 1, 1, 1, 2, 96.031304))
sketch4.addConstraint(Sketcher.Constraint("DistanceY", 0, 2, 0, 1, 8.652174))
sketch4.addConstraint(Sketcher.Constraint("DistanceY", 6, 1, 6, 2, 17.304348))
pad3 = doc.addObject("PartDesign::Pad", "Pad002")
body3.addObject(pad3)
pad3.Profile = sketch4
pad3.Length = 23
pad3.Reversed = True

sketch5 = doc.addObject("Sketcher::SketchObject", "Sketch004")
body3.addObject(sketch5)
sketch5.AttachmentSupport = (doc.getObject("XY_Plane002"), [""])
sketch5.MapMode = "FlatFace"
add_polygon(sketch5, [(-48.015652, -22.652174), (-48.015652, -31.304348), (48.015652, -31.304348), (48.015652, -22.652174), (51.015652, -22.652174), (51.015652, -8.652174), (48.015652, -8.652174), (48.015652, 8.652174), (51.015652, 8.652174), (51.015652, 22.652174), (48.015652, 22.652174), (48.015652, 31.304348), (-48.015652, 31.304348), (-48.015652, 22.652174), (-51.015652, 22.652174), (-51.015652, 8.652174), (-48.015652, 8.652174), (-48.015652, -8.652174), (-51.015652, -8.652174), (-51.015652, -22.652174)])
sketch5.addConstraint(Sketcher.Constraint("Vertical", 0))
sketch5.addConstraint(Sketcher.Constraint("Horizontal", 1))
sketch5.addConstraint(Sketcher.Constraint("Vertical", 2))
sketch5.addConstraint(Sketcher.Constraint("Horizontal", 3))
sketch5.addConstraint(Sketcher.Constraint("Vertical", 4))
sketch5.addConstraint(Sketcher.Constraint("Horizontal", 5))
sketch5.addConstraint(Sketcher.Constraint("Vertical", 6))
sketch5.addConstraint(Sketcher.Constraint("Horizontal", 7))
sketch5.addConstraint(Sketcher.Constraint("Vertical", 8))
sketch5.addConstraint(Sketcher.Constraint("Horizontal", 9))
sketch5.addConstraint(Sketcher.Constraint("Vertical", 10))
sketch5.addConstraint(Sketcher.Constraint("Horizontal", 11))
sketch5.addConstraint(Sketcher.Constraint("Vertical", 12))
sketch5.addConstraint(Sketcher.Constraint("Horizontal", 13))
sketch5.addConstraint(Sketcher.Constraint("Vertical", 14))
sketch5.addConstraint(Sketcher.Constraint("Horizontal", 15))
sketch5.addConstraint(Sketcher.Constraint("Vertical", 16))
sketch5.addConstraint(Sketcher.Constraint("Horizontal", 17))
sketch5.addConstraint(Sketcher.Constraint("Vertical", 18))
sketch5.addConstraint(Sketcher.Constraint("Horizontal", 19))
sketch5.addConstraint(Sketcher.Constraint("Symmetric", 0, 2, 10, 2, -1, 1))
sketch5.addConstraint(Sketcher.Constraint("Symmetric", 2, 2, 12, 2, -1, 1))
sketch5.addConstraint(Sketcher.Constraint("Symmetric", 4, 2, 14, 2, -1, 1))
sketch5.addConstraint(Sketcher.Constraint("Symmetric", 6, 2, 16, 2, -1, 1))
sketch5.addConstraint(Sketcher.Constraint("Symmetric", 8, 2, 18, 2, -1, 1))
sketch5.addConstraint(Sketcher.Constraint("Symmetric", 9, 2, 12, 2, -2))
sketch5.addConstraint(Sketcher.Constraint("Symmetric", 7, 2, 14, 2, -2))
sketch5.addConstraint(Sketcher.Constraint("Vertical", 2, 2, 5, 2))
sketch5.addConstraint(Sketcher.Constraint("DistanceX", 3, 1, 3, 2, 3.0))
sketch5.addConstraint(Sketcher.Constraint("DistanceY", 4, 1, 4, 2, 14.0))
sketch5.addConstraint(Sketcher.Constraint("DistanceX", 1, 1, 1, 2, 96.031304))
sketch5.addConstraint(Sketcher.Constraint("DistanceY", 0, 2, 0, 1, 8.652174))
sketch5.addConstraint(Sketcher.Constraint("DistanceY", 6, 1, 6, 2, 17.304348))
pocket2 = doc.addObject("PartDesign::Pocket", "Pocket001")
body3.addObject(pocket2)
pocket2.Profile = sketch5
pocket2.Length = 20
body4 = doc.addObject("PartDesign::Body", "Body003")

sketch6 = doc.addObject("Sketcher::SketchObject", "Sketch005")
body4.addObject(sketch6)
sketch6.AttachmentSupport = (doc.getObject("YZ_Plane003"), [""])
sketch6.MapMode = "FlatFace"
sketch6.AttachmentOffset = App.Placement(V(0, 0, -51.015652), App.Rotation())
add_polygon(sketch6, [(-31.304348, -26), (-31.304348, 50), (-25.652174, 50), (-25.652174, 53), (-5.652174, 53), (-5.652174, 50), (5.652174, 50), (5.652174, 53), (25.652174, 53), (25.652174, 50), (31.304348, 50), (31.304348, -26)])
add_polygon(sketch6, [(8.652174, -23), (22.652174, -23), (22.652174, -20), (8.652174, -20)])
add_polygon(sketch6, [(8.652174, 0), (22.652174, 0), (22.652174, 3), (8.652174, 3)])
add_polygon(sketch6, [(-22.652174, -23), (-8.652174, -23), (-8.652174, -20), (-22.652174, -20)])
add_polygon(sketch6, [(-22.652174, 0), (-8.652174, 0), (-8.652174, 3), (-22.652174, 3)])
add_polygon(sketch6, [(17.781738, 22.754597), (10.986028, 22.754597), (7.588173, 16.869339), (10.986028, 10.984081), (17.781738, 10.984081), (21.179594, 16.869339)])
add_polygon(sketch6, [(17.781738, 39.363674), (10.986028, 39.363674), (7.588173, 33.478417), (10.986028, 27.593159), (17.781738, 27.593159), (21.179594, 33.478417)])
add_polygon(sketch6, [(8.652174, 47), (22.652174, 47), (22.652174, 50), (8.652174, 50)])
add_polygon(sketch6, [(3.397855, 31.059136), (-3.397855, 31.059136), (-6.79571, 25.173878), (-3.397855, 19.28862), (3.397855, 19.28862), (6.79571, 25.173878)])
add_polygon(sketch6, [(-10.986028, 22.754597), (-17.781738, 22.754597), (-21.179594, 16.869339), (-17.781738, 10.984081), (-10.986028, 10.984081), (-7.588173, 16.869339)])
add_polygon(sketch6, [(-10.986028, 39.363674), (-17.781738, 39.363674), (-21.179594, 33.478417), (-17.781738, 27.593159), (-10.986028, 27.593159), (-7.588173, 33.478417)])
add_polygon(sketch6, [(-22.652174, 47), (-8.652174, 47), (-8.652174, 50), (-22.652174, 50)])
sketch6.addConstraint(Sketcher.Constraint("Vertical", 0))
sketch6.addConstraint(Sketcher.Constraint("Horizontal", 1))
sketch6.addConstraint(Sketcher.Constraint("Vertical", 2))
sketch6.addConstraint(Sketcher.Constraint("Horizontal", 3))
sketch6.addConstraint(Sketcher.Constraint("Vertical", 4))
sketch6.addConstraint(Sketcher.Constraint("Horizontal", 5))
sketch6.addConstraint(Sketcher.Constraint("Vertical", 6))
sketch6.addConstraint(Sketcher.Constraint("Horizontal", 7))
sketch6.addConstraint(Sketcher.Constraint("Vertical", 8))
sketch6.addConstraint(Sketcher.Constraint("Horizontal", 9))
sketch6.addConstraint(Sketcher.Constraint("Vertical", 10))
sketch6.addConstraint(Sketcher.Constraint("Horizontal", 11))
sketch6.addConstraint(Sketcher.Constraint("Horizontal", 12))
sketch6.addConstraint(Sketcher.Constraint("Vertical", 13))
sketch6.addConstraint(Sketcher.Constraint("Horizontal", 14))
sketch6.addConstraint(Sketcher.Constraint("Vertical", 15))
sketch6.addConstraint(Sketcher.Constraint("Horizontal", 16))
sketch6.addConstraint(Sketcher.Constraint("Vertical", 17))
sketch6.addConstraint(Sketcher.Constraint("Horizontal", 18))
sketch6.addConstraint(Sketcher.Constraint("Vertical", 19))
sketch6.addConstraint(Sketcher.Constraint("Horizontal", 20))
sketch6.addConstraint(Sketcher.Constraint("Vertical", 21))
sketch6.addConstraint(Sketcher.Constraint("Horizontal", 22))
sketch6.addConstraint(Sketcher.Constraint("Vertical", 23))
sketch6.addConstraint(Sketcher.Constraint("Horizontal", 24))
sketch6.addConstraint(Sketcher.Constraint("Vertical", 25))
sketch6.addConstraint(Sketcher.Constraint("Horizontal", 26))
sketch6.addConstraint(Sketcher.Constraint("Vertical", 27))
sketch6.addConstraint(Sketcher.Constraint("Horizontal", 28))
sketch6.addConstraint(Sketcher.Constraint("Horizontal", 31))
sketch6.addConstraint(Sketcher.Constraint("Horizontal", 34))
sketch6.addConstraint(Sketcher.Constraint("Horizontal", 37))
sketch6.addConstraint(Sketcher.Constraint("Horizontal", 40))
sketch6.addConstraint(Sketcher.Constraint("Vertical", 41))
sketch6.addConstraint(Sketcher.Constraint("Horizontal", 42))
sketch6.addConstraint(Sketcher.Constraint("Vertical", 43))
sketch6.addConstraint(Sketcher.Constraint("Horizontal", 44))
sketch6.addConstraint(Sketcher.Constraint("Horizontal", 47))
sketch6.addConstraint(Sketcher.Constraint("Horizontal", 50))
sketch6.addConstraint(Sketcher.Constraint("Horizontal", 53))
sketch6.addConstraint(Sketcher.Constraint("Horizontal", 56))
sketch6.addConstraint(Sketcher.Constraint("Horizontal", 59))
sketch6.addConstraint(Sketcher.Constraint("Horizontal", 62))
sketch6.addConstraint(Sketcher.Constraint("Vertical", 63))
sketch6.addConstraint(Sketcher.Constraint("Horizontal", 64))
sketch6.addConstraint(Sketcher.Constraint("Vertical", 65))
sketch6.addConstraint(Sketcher.Constraint("Symmetric", 19, 2, 24, 2, -1, 1))
sketch6.addConstraint(Sketcher.Constraint("Symmetric", 3, 2, 6, 2, -2))
sketch6.addConstraint(Sketcher.Constraint("Symmetric", 1, 2, 8, 2, -2))
sketch6.addConstraint(Sketcher.Constraint("Symmetric", 15, 2, 20, 2, -2))
sketch6.addConstraint(Sketcher.Constraint("Symmetric", 13, 2, 22, 2, -2))
sketch6.addConstraint(Sketcher.Constraint("Symmetric", 17, 2, 26, 2, -2))
sketch6.addConstraint(Sketcher.Constraint("Symmetric", 45, 2, 48, 2, -2))
sketch6.addConstraint(Sketcher.Constraint("Symmetric", 33, 2, 50, 2, -2))
sketch6.addConstraint(Sketcher.Constraint("Symmetric", 32, 2, 51, 2, -2))
sketch6.addConstraint(Sketcher.Constraint("Symmetric", 31, 2, 52, 2, -2))
sketch6.addConstraint(Sketcher.Constraint("Symmetric", 29, 2, 54, 2, -2))
sketch6.addConstraint(Sketcher.Constraint("Symmetric", 39, 2, 56, 2, -2))
sketch6.addConstraint(Sketcher.Constraint("Symmetric", 38, 2, 57, 2, -2))
sketch6.addConstraint(Sketcher.Constraint("Symmetric", 37, 2, 58, 2, -2))
sketch6.addConstraint(Sketcher.Constraint("Symmetric", 35, 2, 60, 2, -2))
sketch6.addConstraint(Sketcher.Constraint("Symmetric", 43, 2, 62, 2, -2))
sketch6.addConstraint(Sketcher.Constraint("Symmetric", 41, 2, 64, 2, -2))
sketch6.addConstraint(Sketcher.Constraint("PointOnObject", 16, 2, -1))
sketch6.addConstraint(Sketcher.Constraint("Parallel", 29, 32))
sketch6.addConstraint(Sketcher.Constraint("Parallel", 30, 33))
sketch6.addConstraint(Sketcher.Constraint("Parallel", 32, 35))
sketch6.addConstraint(Sketcher.Constraint("Parallel", 33, 36))
sketch6.addConstraint(Sketcher.Constraint("Parallel", 35, 38))
sketch6.addConstraint(Sketcher.Constraint("Parallel", 36, 39))
sketch6.addConstraint(Sketcher.Constraint("Parallel", 38, 45))
sketch6.addConstraint(Sketcher.Constraint("Parallel", 39, 46))
sketch6.addConstraint(Sketcher.Constraint("Parallel", 45, 48))
sketch6.addConstraint(Sketcher.Constraint("Parallel", 46, 49))
sketch6.addConstraint(Sketcher.Constraint("Parallel", 48, 51))
sketch6.addConstraint(Sketcher.Constraint("Parallel", 51, 54))
sketch6.addConstraint(Sketcher.Constraint("Parallel", 52, 55))
sketch6.addConstraint(Sketcher.Constraint("Parallel", 57, 60))
sketch6.addConstraint(Sketcher.Constraint("Parallel", 58, 61))
sketch6.addConstraint(Sketcher.Constraint("Horizontal", 1, 2, 4, 2))
sketch6.addConstraint(Sketcher.Constraint("Horizontal", 29, 2, 32, 2))
sketch6.addConstraint(Sketcher.Constraint("Horizontal", 35, 2, 38, 2))
sketch6.addConstraint(Sketcher.Constraint("Horizontal", 9, 2, 41, 2))
sketch6.addConstraint(Sketcher.Constraint("Vertical", 13, 2, 16, 2))
sketch6.addConstraint(Sketcher.Constraint("Vertical", 15, 2, 18, 2))
sketch6.addConstraint(Sketcher.Constraint("Vertical", 28, 2, 30, 2))
sketch6.addConstraint(Sketcher.Constraint("Vertical", 30, 2, 34, 2))
sketch6.addConstraint(Sketcher.Constraint("Vertical", 29, 2, 35, 2))
sketch6.addConstraint(Sketcher.Constraint("Vertical", 34, 2, 36, 2))
sketch6.addConstraint(Sketcher.Constraint("Vertical", 33, 2, 37, 2))
sketch6.addConstraint(Sketcher.Constraint("Vertical", 17, 2, 40, 2))
sketch6.addConstraint(Sketcher.Constraint("Vertical", 19, 2, 42, 2))
sketch6.addConstraint(Sketcher.Constraint("Vertical", 44, 2, 46, 2))
sketch6.addConstraint(Sketcher.Constraint("Equal", 1, 9))
sketch6.addConstraint(Sketcher.Constraint("Equal", 37, 44))
sketch6.addConstraint(Sketcher.Constraint("Equal", 8, 13))
sketch6.addConstraint(Sketcher.Constraint("Equal", 15, 17))
sketch6.addConstraint(Sketcher.Constraint("Equal", 27, 41))
sketch6.addConstraint(Sketcher.Constraint("Equal", 39, 45))
sketch6.addConstraint(Sketcher.Constraint("DistanceX", 3, 1, 3, 2, 20.0))
sketch6.addConstraint(Sketcher.Constraint("DistanceX", 12, 1, 12, 2, 14.0))
sketch6.addConstraint(Sketcher.Constraint("DistanceY", 0, 1, 0, 2, 76.0))
sketch6.addConstraint(Sketcher.Constraint("DistanceY", 2, 1, 2, 2, 3.0))
sketch6.addConstraint(Sketcher.Constraint("Angle", 29, Q("-120 deg")))
sketch6.addConstraint(Sketcher.Constraint("DistanceY", -1, 1, 0, 2, 50.0))
sketch6.addConstraint(Sketcher.Constraint("DistanceY", 12, 2, -1, 1, 23.0))
sketch6.addConstraint(Sketcher.Constraint("DistanceX", 28, 2, 28, 1, 6.79571))
sketch6.addConstraint(Sketcher.Constraint("Distance", 29, 6.79571))
sketch6.addConstraint(Sketcher.Constraint("DistanceX", 1, 1, 1, 2, 5.652174))
sketch6.addConstraint(Sketcher.Constraint("DistanceX", 5, 1, 5, 2, 11.304348))
sketch6.addConstraint(Sketcher.Constraint("DistanceY", -1, 1, 29, 2, 16.869339))
sketch6.addConstraint(Sketcher.Constraint("DistanceX", -1, 1, 31, 2, 17.781738))
sketch6.addConstraint(Sketcher.Constraint("DistanceY", -1, 1, 36, 2, 27.593159))
sketch6.addConstraint(Sketcher.Constraint("DistanceY", -1, 1, 46, 2, 19.28862))
sketch6.addConstraint(Sketcher.Constraint("DistanceX", -1, 1, 12, 2, 22.652174))
pad4 = doc.addObject("PartDesign::Pad", "Pad003")
body4.addObject(pad4)
pad4.Profile = sketch6
pad4.Length = 3
body5 = doc.addObject("PartDesign::Body", "Body004")
doc.recompute()

mirroring = doc.addObject("Part::Mirroring", "Mirroring")
mirroring.Source = body4
mirroring.Base = V(0, 0, 0)
mirroring.Normal = V(1, 0, 0)
body5.BaseFeature = mirroring
doc.recompute()
mirroring.Visibility = False

doc.recompute()
